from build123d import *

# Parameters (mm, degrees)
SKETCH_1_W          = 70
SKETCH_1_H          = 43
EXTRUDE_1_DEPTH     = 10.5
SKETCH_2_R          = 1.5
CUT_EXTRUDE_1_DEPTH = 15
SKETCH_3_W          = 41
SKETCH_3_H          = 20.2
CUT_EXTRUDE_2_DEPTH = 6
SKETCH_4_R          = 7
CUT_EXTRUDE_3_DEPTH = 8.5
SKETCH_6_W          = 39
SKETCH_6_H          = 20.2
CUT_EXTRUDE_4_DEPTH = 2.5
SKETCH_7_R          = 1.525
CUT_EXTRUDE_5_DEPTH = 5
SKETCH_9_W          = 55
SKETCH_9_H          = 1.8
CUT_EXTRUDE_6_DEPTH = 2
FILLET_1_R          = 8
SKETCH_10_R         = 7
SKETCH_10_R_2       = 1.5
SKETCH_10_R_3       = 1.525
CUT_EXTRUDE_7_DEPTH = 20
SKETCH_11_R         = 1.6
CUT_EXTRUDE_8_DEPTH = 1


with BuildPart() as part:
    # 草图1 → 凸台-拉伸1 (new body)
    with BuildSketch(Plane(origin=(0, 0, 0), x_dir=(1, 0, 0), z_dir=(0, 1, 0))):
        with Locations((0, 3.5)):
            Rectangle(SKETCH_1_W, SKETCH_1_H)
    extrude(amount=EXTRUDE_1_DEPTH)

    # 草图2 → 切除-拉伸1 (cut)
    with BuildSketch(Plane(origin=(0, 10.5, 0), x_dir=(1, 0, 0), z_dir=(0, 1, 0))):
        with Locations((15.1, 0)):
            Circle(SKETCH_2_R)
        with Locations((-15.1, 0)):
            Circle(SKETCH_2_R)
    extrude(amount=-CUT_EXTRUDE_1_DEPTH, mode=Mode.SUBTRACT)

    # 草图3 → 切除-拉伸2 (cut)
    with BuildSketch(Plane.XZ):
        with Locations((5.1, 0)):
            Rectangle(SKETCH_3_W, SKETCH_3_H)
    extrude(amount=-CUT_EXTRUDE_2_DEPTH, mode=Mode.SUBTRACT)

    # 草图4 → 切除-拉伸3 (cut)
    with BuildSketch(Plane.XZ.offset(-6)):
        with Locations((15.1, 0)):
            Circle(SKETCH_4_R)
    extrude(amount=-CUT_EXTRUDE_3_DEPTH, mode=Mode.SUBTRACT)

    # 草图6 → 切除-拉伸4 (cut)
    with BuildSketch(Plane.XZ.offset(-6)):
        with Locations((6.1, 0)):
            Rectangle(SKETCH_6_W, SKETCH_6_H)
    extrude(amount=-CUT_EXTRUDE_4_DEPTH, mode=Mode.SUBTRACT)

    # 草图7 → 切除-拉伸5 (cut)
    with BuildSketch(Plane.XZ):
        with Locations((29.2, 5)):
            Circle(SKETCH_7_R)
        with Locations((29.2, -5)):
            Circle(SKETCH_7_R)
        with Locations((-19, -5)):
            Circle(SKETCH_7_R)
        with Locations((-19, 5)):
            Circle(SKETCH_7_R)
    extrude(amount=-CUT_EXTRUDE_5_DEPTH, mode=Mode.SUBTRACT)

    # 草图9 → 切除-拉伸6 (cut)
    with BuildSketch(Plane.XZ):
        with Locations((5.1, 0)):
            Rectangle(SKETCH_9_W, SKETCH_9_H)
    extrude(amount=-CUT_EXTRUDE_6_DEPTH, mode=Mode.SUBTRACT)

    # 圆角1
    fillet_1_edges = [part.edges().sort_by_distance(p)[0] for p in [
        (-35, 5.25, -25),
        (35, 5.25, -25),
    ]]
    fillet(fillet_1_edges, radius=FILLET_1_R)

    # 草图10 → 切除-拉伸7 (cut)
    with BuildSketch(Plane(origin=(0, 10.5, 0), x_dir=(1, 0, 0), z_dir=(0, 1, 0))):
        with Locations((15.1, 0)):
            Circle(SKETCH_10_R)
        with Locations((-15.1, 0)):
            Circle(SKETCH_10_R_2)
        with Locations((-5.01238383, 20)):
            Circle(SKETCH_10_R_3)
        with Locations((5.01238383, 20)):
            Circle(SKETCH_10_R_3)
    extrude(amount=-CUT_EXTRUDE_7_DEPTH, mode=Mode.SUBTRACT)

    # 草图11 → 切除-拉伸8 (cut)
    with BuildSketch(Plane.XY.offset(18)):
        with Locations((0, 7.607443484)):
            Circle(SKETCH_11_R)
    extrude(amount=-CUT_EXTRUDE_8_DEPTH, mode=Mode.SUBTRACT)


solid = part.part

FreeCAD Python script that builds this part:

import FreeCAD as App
import Part
import Sketcher


def edges_at(feature, points):
    """Names of the edges that pass closest to the given points."""
    edges = feature.Shape.Edges
    near = lambda p: min(range(len(edges)), key=lambda i: edges[i].distToShape(Part.Vertex(*p))[0])
    return sorted({f"Edge{near(p) + 1}" for p in points})


def add_polygon(sketch, points):
    """Adds a closed chain of lines whose ends are joined by coincident constraints."""
    first, n = sketch.GeometryCount, len(points)
    for a, b in zip(points, points[1:] + points[:1]):
        sketch.addGeometry(Part.LineSegment(App.Vector(*a, 0), App.Vector(*b, 0)), False)
    for i in range(n):
        sketch.addConstraint(Sketcher.Constraint("Coincident", first + i, 2, first + (i + 1) % n, 1))

doc = App.newDocument("Part")
body = doc.addObject("PartDesign::Body", "Body")

# Sketch on XZ plane
sketch1 = body.newObject("Sketcher::SketchObject", "Sketch")
sketch1.AttachmentSupport = (doc.getObject("XZ_Plane"), [""])
sketch1.MapMode = "FlatFace"
add_polygon(sketch1, [(-35, -25), (-35, 18), (35, 18), (35, -25)])  # lines 0-3
sketch1.addConstraint(Sketcher.Constraint("Vertical", 0))
sketch1.addConstraint(Sketcher.Constraint("Horizontal", 1))
sketch1.addConstraint(Sketcher.Constraint("Vertical", 2))
sketch1.addConstraint(Sketcher.Constraint("Horizontal", 3))
sketch1.addConstraint(Sketcher.Constraint("DistanceX", 1, 1, 1, 2, 70.0))
sketch1.addConstraint(Sketcher.Constraint("DistanceY", 0, 1, 0, 2, 43.0))
sketch1.addConstraint(Sketcher.Constraint("DistanceX", 0, 2, -1, 1, 35.0))
sketch1.addConstraint(Sketcher.Constraint("DistanceY", -1, 1, 0, 2, 18.0))
pad1 = body.newObject("PartDesign::Pad", "Pad")
pad1.Profile = sketch1
pad1.Length = 10.5
pad1.Reversed = True

# Sketch on XZ plane
sketch2 = body.newObject("Sketcher::SketchObject", "Sketch001")
sketch2.AttachmentSupport = (doc.getObject("XZ_Plane"), [""])
sketch2.MapMode = "FlatFace"
sketch2.AttachmentOffset = App.Placement(App.Vector(0, 0, -10.5), App.Rotation())
sketch2.addGeometry(Part.Circle(App.Vector(15.1, 0, 0), App.Vector(0, 0, 1), 1.5), False)
sketch2.addGeometry(Part.Circle(App.Vector(-15.1, 0, 0), App.Vector(0, 0, 1), 1.5), False)
sketch2.addConstraint(Sketcher.Constraint("Equal", 0, 1))
sketch2.addConstraint(Sketcher.Constraint("Symmetric", 0, 3, 1, 3, -1, 1))
sketch2.addConstraint(Sketcher.Constraint("PointOnObject", 0, 3, -1))
sketch2.addConstraint(Sketcher.Constraint("Diameter", 0, 3.0))
sketch2.addConstraint(Sketcher.Constraint("DistanceX", -1, 1, 0, 3, 15.1))
pocket1 = body.newObject("PartDesign::Pocket", "Pocket")
pocket1.Profile = sketch2
pocket1.Length = 15
pocket1.Reversed = True

# Sketch on XZ plane
sketch3 = body.newObject("Sketcher::SketchObject", "Sketch002")
sketch3.AttachmentSupport = (doc.getObject("XZ_Plane"), [""])
sketch3.MapMode = "FlatFace"
add_polygon(sketch3, [(-15, 10), (-15, -10), (26, -10), (26, 10)])  # lines 0-3
sketch3.addConstraint(Sketcher.Constraint("Vertical", 0))
sketch3.addConstraint(Sketcher.Constraint("Horizontal", 1))
sketch3.addConstraint(Sketcher.Constraint("Vertical", 2))
sketch3.addConstraint(Sketcher.Constraint("Horizontal", 3))
sketch3.addConstraint(Sketcher.Constraint("DistanceX", 1, 1, 1, 2, 41.0))
sketch3.addConstraint(Sketcher.Constraint("DistanceY", 0, 2, 0, 1, 20.2))
sketch3.addConstraint(Sketcher.Constraint("DistanceX", 0, 2, -1, 1, 15.4))
sketch3.addConstraint(Sketcher.Constraint("DistanceY", 0, 2, -1, 1, 10.1))
pocket2 = body.newObject("PartDesign::Pocket", "Pocket001")
pocket2.Profile = sketch3
pocket2.Length = 6

# Sketch on XZ plane
sketch4 = body.newObject("Sketcher::SketchObject", "Sketch003")
sketch4.AttachmentSupport = (doc.getObject("XZ_Plane"), [""])
sketch4.MapMode = "FlatFace"
sketch4.AttachmentOffset = App.Placement(App.Vector(0, 0, -6), App.Rotation())
sketch4.addGeometry(Part.Circle(App.Vector(15, 0, 0), App.Vector(0, 0, 1), 7), False)
sketch4.addConstraint(Sketcher.Constraint("PointOnObject", 0, 3, -1))
sketch4.addConstraint(Sketcher.Constraint("Diameter", 0, 14.0))
sketch4.addConstraint(Sketcher.Constraint("DistanceX", -1, 1, 0, 3, 15.1))
pocket3 = body.newObject("PartDesign::Pocket", "Pocket002")
pocket3.Profile = sketch4
pocket3.Length = 8.5

# Sketch on XZ plane
sketch5 = body.newObject("Sketcher::SketchObject", "Sketch004")
sketch5.AttachmentSupport = (doc.getObject("XZ_Plane"), [""])
sketch5.MapMode = "FlatFace"
sketch5.AttachmentOffset = App.Placement(App.Vector(0, 0, -6), App.Rotation())
add_polygon(sketch5, [(-13, 10), (-13, -10), (26, -10), (26, 10)])  # lines 0-3
sketch5.addConstraint(Sketcher.Constraint("Vertical", 0))
sketch5.addConstraint(Sketcher.Constraint("Horizontal", 1))
sketch5.addConstraint(Sketcher.Constraint("Vertical", 2))
sketch5.addConstraint(Sketcher.Constraint("Horizontal", 3))
sketch5.addConstraint(Sketcher.Constraint("DistanceX", 1, 1, 1, 2, 39.0))
sketch5.addConstraint(Sketcher.Constraint("DistanceY", 0, 2, 0, 1, 20.2))
sketch5.addConstraint(Sketcher.Constraint("DistanceX", 0, 2, -1, 1, 13.4))
sketch5.addConstraint(Sketcher.Constraint("DistanceY", 0, 2, -1, 1, 10.1))
pocket4 = body.newObject("PartDesign::Pocket", "Pocket003")
pocket4.Profile = sketch5
pocket4.Length = 2.5

# Sketch on XZ plane
sketch6 = body.newObject("Sketcher::SketchObject", "Sketch005")
sketch6.AttachmentSupport = (doc.getObject("XZ_Plane"), [""])
sketch6.MapMode = "FlatFace"
sketch6.addGeometry(Part.Circle(App.Vector(29.2, 5, 0), App.Vector(0, 0, 1), 1.5), False)
sketch6.addGeometry(Part.Circle(App.Vector(29.2, -5, 0), App.Vector(0, 0, 1), 1.5), False)
sketch6.addGeometry(Part.Circle(App.Vector(-19, -5, 0), App.Vector(0, 0, 1), 1.5), False)
sketch6.addGeometry(Part.Circle(App.Vector(-19, 5, 0), App.Vector(0, 0, 1), 1.5), False)
sketch6.addConstraint(Sketcher.Constraint("Equal", 0, 1))
sketch6.addConstraint(Sketcher.Constraint("Equal", 1, 2))
sketch6.addConstraint(Sketcher.Constraint("Equal", 2, 3))
sketch6.addConstraint(Sketcher.Constraint("Symmetric", 0, 3, 1, 3, -1))
sketch6.addConstraint(Sketcher.Constraint("Symmetric", 2, 3, 3, 3, -1))
sketch6.addConstraint(Sketcher.Constraint("Horizontal", 1, 3, 2, 3))
sketch6.addConstraint(Sketcher.Constraint("Diameter", 0, 3.05))
sketch6.addConstraint(Sketcher.Constraint("DistanceY", -1, 1, 0, 3, 5.0))
sketch6.addConstraint(Sketcher.Constraint("DistanceX", 2, 3, -1, 1, 19.0))
sketch6.addConstraint(Sketcher.Constraint("DistanceX", -1, 1, 0, 3, 29.2))
pocket5 = body.newObject("PartDesign::Pocket", "Pocket004")
pocket5.Profile = sketch6
pocket5.Length = 5

# Sketch on XZ plane
sketch7 = body.newObject("Sketcher::SketchObject", "Sketch006")
sketch7.AttachmentSupport = (doc.getObject("XZ_Plane"), [""])
sketch7.MapMode = "FlatFace"
add_polygon(sketch7, [(-22.4, 0.9), (-22.4, -0.9), (32.6, -0.9), (32.6, 0.9)])  # lines 0-3
sketch7.addConstraint(Sketcher.Constraint("Vertical", 0))
sketch7.addConstraint(Sketcher.Constraint("Horizontal", 1))
sketch7.addConstraint(Sketcher.Constraint("Vertical", 2))
sketch7.addConstraint(Sketcher.Constraint("Horizontal", 3))
sketch7.addConstraint(Sketcher.Constraint("DistanceX", 1, 1, 1, 2, 55.0))
sketch7.addConstraint(Sketcher.Constraint("DistanceY", 0, 2, 0, 1, 1.8))
sketch7.addConstraint(Sketcher.Constraint("DistanceX", 0, 2, -1, 1, 22.4))
sketch7.addConstraint(Sketcher.Constraint("DistanceY", 0, 2, -1, 1, 0.9))
pocket6 = body.newObject("PartDesign::Pocket", "Pocket005")
pocket6.Profile = sketch7
pocket6.Length = 2
doc.recompute()

fillet = body.newObject("PartDesign::Fillet", "Fillet")
fillet.Base = (pocket6, edges_at(pocket6, [(-35, 5.25, -25), (35, 5.25, -25)]))
fillet.Radius = 8

# Sketch on XZ plane
sketch8 = body.newObject("Sketcher::SketchObject", "Sketch007")
sketch8.AttachmentSupport = (doc.getObject("XZ_Plane"), [""])
sketch8.MapMode = "FlatFace"
sketch8.AttachmentOffset = App.Placement(App.Vector(0, 0, -10.5), App.Rotation())
sketch8.addGeometry(Part.Circle(App.Vector(15.1, 0, 0), App.Vector(0, 0, 1), 7), False)
sketch8.addGeometry(Part.Circle(App.Vector(-15.1, 0, 0), App.Vector(0, 0, 1), 1.5), False)
sketch8.addGeometry(Part.Circle(App.Vector(-5, -20, 0), App.Vector(0, 0, 1), 1.5), False)
sketch8.addGeometry(Part.Circle(App.Vector(5, -20, 0), App.Vector(0, 0, 1), 1.5), False)
sketch8.addConstraint(Sketcher.Constraint("Equal", 2, 3))
sketch8.addConstraint(Sketcher.Constraint("Symmetric", 0, 3, 1, 3, -1, 1))
sketch8.addConstraint(Sketcher.Constraint("Symmetric", 2, 3, 3, 3, -2))
sketch8.addConstraint(Sketcher.Constraint("PointOnObject", 0, 3, -1))
sketch8.addConstraint(Sketcher.Constraint("Diameter", 0, 14.0))
sketch8.addConstraint(Sketcher.Constraint("Diameter", 1, 3.0))
sketch8.addConstraint(Sketcher.Constraint("Diameter", 2, 3.05))
sketch8.addConstraint(Sketcher.Constraint("DistanceY", 2, 3, -1, 1, 20.0))
sketch8.addConstraint(Sketcher.Constraint("DistanceX", -1, 1, 0, 3, 15.1))
sketch8.addConstraint(Sketcher.Constraint("DistanceX", 2, 3, -1, 1, 5.012384))
pocket7 = body.newObject("PartDesign::Pocket", "Pocket006")
pocket7.Profile = sketch8
pocket7.Length = 20
pocket7.Reversed = True

# Sketch on XY plane
sketch9 = body.newObject("Sketcher::SketchObject", "Sketch008")
sketch9.AttachmentSupport = (doc.getObject("XY_Plane"), [""])
sketch9.MapMode = "FlatFace"
sketch9.AttachmentOffset = App.Placement(App.Vector(0, 0, 18), App.Rotation())
sketch9.addGeometry(Part.Circle(App.Vector(0, 7.6, 0), App.Vector(0, 0, 1), 1.6), False)
sketch9.addConstraint(Sketcher.Constraint("PointOnObject", 0, 3, -2))
sketch9.addConstraint(Sketcher.Constraint("Diameter", 0, 3.2))
sketch9.addConstraint(Sketcher.Constraint("DistanceY", -1, 1, 0, 3, 7.607443))
pocket8 = body.newObject("PartDesign::Pocket", "Pocket007")
pocket8.Profile = sketch9
pocket8.Length = 1

doc.recompute()
